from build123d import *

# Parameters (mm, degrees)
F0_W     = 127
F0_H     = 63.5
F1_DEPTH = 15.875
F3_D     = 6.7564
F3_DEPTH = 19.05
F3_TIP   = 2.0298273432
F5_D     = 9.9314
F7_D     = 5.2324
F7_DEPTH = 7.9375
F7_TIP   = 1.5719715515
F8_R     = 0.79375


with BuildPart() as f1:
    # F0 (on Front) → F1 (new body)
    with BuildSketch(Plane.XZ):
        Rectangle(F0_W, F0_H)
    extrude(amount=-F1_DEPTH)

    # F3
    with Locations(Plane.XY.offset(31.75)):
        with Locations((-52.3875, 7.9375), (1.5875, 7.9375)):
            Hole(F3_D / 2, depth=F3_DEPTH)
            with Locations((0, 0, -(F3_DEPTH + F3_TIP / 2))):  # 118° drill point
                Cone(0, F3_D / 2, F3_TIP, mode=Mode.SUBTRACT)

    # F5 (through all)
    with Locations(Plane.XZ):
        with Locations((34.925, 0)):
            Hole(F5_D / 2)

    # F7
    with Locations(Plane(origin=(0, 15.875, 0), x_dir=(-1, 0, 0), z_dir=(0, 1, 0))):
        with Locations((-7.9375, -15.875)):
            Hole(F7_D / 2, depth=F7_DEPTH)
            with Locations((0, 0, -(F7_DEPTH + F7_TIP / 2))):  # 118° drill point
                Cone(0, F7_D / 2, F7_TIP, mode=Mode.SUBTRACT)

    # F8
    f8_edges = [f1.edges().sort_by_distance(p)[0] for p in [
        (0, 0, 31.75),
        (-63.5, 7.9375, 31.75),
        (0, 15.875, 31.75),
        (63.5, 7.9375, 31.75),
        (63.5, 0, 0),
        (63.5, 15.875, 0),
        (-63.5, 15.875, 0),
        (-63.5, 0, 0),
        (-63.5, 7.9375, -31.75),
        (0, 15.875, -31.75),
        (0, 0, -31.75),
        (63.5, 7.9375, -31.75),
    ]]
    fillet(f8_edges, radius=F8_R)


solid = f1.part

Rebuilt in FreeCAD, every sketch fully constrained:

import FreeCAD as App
import Part
import Sketcher
Q = App.Units.Quantity


def edges_at(feature, points):
    """Names of the edges that pass closest to the given points."""
    edges = feature.Shape.Edges
    near = lambda p: min(range(len(edges)), key=lambda i: edges[i].distToShape(Part.Vertex(*p))[0])
    return sorted({f"Edge{near(p) + 1}" for p in points})

doc = App.newDocument("Part")
body = doc.addObject("PartDesign::Body", "Body")

sketch1 = body.newObject("Sketcher::SketchObject", "Sketch")
sketch1.AttachmentSupport = (doc.getObject("XZ_Plane"), [""])
sketch1.MapMode = "FlatFace"
sketch1.addGeometry([
    Part.LineSegment(App.Vector(-63.5, 31.75, 0), App.Vector(-63.5, -31.75, 0)),
    Part.LineSegment(App.Vector(-63.5, -31.75, 0), App.Vector(63.5, -31.75, 0)),
    Part.LineSegment(App.Vector(63.5, -31.75, 0), App.Vector(63.5, 31.75, 0)),
    Part.LineSegment(App.Vector(63.5, 31.75, 0), App.Vector(-63.5, 31.75, 0)),
], False)
sketch1.addConstraint([
    Sketcher.Constraint("Coincident", 0, 2, 1, 1),
    Sketcher.Constraint("Coincident", 1, 2, 2, 1),
    Sketcher.Constraint("Coincident", 2, 2, 3, 1),
    Sketcher.Constraint("Coincident", 3, 2, 0, 1),
    Sketcher.Constraint("Vertical", 0),
    Sketcher.Constraint("Horizontal", 1),
    Sketcher.Constraint("Vertical", 2),
    Sketcher.Constraint("Horizontal", 3),
    Sketcher.Constraint("Symmetric", 0, 2, 2, 2, -1, 1),
    Sketcher.Constraint("DistanceX", 1, 1, 1, 2, Q("5 in")),
    Sketcher.Constraint("DistanceY", 0, 2, 0, 1, Q("2.5 in")),
])
pad1 = body.newObject("PartDesign::Pad", "Pad")
pad1.Profile = sketch1
pad1.Length = Q("0.625 in")
pad1.Reversed = True

sketch2 = body.newObject("Sketcher::SketchObject", "Sketch001")
sketch2.AttachmentSupport = (doc.getObject("XY_Plane"), [""])
sketch2.MapMode = "FlatFace"
sketch2.AttachmentOffset = App.Placement(App.Vector(0, 0, 1.25 * 25.4), App.Rotation())
sketch2.addGeometry([
    Part.Circle(App.Vector(-52.3875, 7.9375, 0), App.Vector(0, 0, 1), 3.3782),
    Part.Circle(App.Vector(1.5875, 7.9375, 0), App.Vector(0, 0, 1), 3.3782),
], False)
sketch2.addConstraint([
    Sketcher.Constraint("Equal", 0, 1),
    Sketcher.Constraint("Horizontal", 0, 3, 1, 3),
    Sketcher.Constraint("Diameter", 0, Q("0.266 in")),
    Sketcher.Constraint("DistanceX", 0, 3, -1, 1, Q("2.0625 in")),
    Sketcher.Constraint("DistanceY", -1, 1, 0, 3, Q("0.3125 in")),
    Sketcher.Constraint("DistanceX", -1, 1, 1, 3, Q("0.0625 in")),
])
doc.recompute()
hole = body.newObject("PartDesign::Hole", "Hole")
hole.Profile = sketch2
hole.ThreadType = "None"
hole.Diameter = Q("0.266 in")
hole.DepthType = "Dimension"
hole.Depth = Q("0.75 in")
hole.DrillPoint = "Angled"
hole.DrillPointAngle = 118

sketch3 = body.newObject("Sketcher::SketchObject", "Sketch002")
sketch3.AttachmentSupport = (doc.getObject("XZ_Plane"), [""])
sketch3.MapMode = "FlatFace"
sketch3.addGeometry(Part.Circle(App.Vector(34.925, 0, 0), App.Vector(0, 0, 1), 4.9657), False)
sketch3.addConstraint([
    Sketcher.Constraint("PointOnObject", 0, 3, -1),
    Sketcher.Constraint("Diameter", 0, Q("0.391 in")),
    Sketcher.Constraint("DistanceX", -1, 1, 0, 3, Q("1.375 in")),
])
doc.recompute()
hole2 = body.newObject("PartDesign::Hole", "Hole001")
hole2.Profile = sketch3
hole2.ThreadType = "None"
hole2.Diameter = Q("0.391 in")
hole2.DepthType = "ThroughAll"

sketch4 = body.newObject("Sketcher::SketchObject", "Sketch003")
sketch4.AttachmentSupport = (doc.getObject("XZ_Plane"), [""])
sketch4.MapMode = "FlatFace"
sketch4.AttachmentOffset = App.Placement(App.Vector(0, 0, -0.625 * 25.4), App.Rotation())
sketch4.addGeometry(Part.Circle(App.Vector(7.9375, -15.875, 0), App.Vector(0, 0, 1), 2.6162), False)
sketch4.addConstraint([
    Sketcher.Constraint("Diameter", 0, Q("0.206 in")),
    Sketcher.Constraint("DistanceX", -1, 1, 0, 3, Q("0.3125 in")),
    Sketcher.Constraint("DistanceY", 0, 3, -1, 1, Q("0.625 in")),
])
doc.recompute()
hole3 = body.newObject("PartDesign::Hole", "Hole002")
hole3.Profile = sketch4
hole3.ThreadType = "None"
hole3.Diameter = Q("0.206 in")
hole3.DepthType = "Dimension"
hole3.Depth = Q("0.3125 in")
hole3.DrillPoint = "Angled"
hole3.DrillPointAngle = 118
hole3.Reversed = True
doc.recompute()

fillet = body.newObject("PartDesign::Fillet", "Fillet")
fillet.Base = (hole3, edges_at(hole3, [
    (0, 0, 31.75),
    (-63.5, 7.938, 31.75),
    (0, 15.875, 31.75),
    (63.5, 7.938, 31.75),
    (63.5, 0, 0),
    (63.5, 15.875, 0),
    (-63.5, 15.875, 0),
    (-63.5, 0, 0),
    (-63.5, 7.938, -31.75),
    (0, 15.875, -31.75),
    (0, 0, -31.75),
    (63.5, 7.938, -31.75),
]))
fillet.Radius = Q("0.03125 in")

doc.recompute()
